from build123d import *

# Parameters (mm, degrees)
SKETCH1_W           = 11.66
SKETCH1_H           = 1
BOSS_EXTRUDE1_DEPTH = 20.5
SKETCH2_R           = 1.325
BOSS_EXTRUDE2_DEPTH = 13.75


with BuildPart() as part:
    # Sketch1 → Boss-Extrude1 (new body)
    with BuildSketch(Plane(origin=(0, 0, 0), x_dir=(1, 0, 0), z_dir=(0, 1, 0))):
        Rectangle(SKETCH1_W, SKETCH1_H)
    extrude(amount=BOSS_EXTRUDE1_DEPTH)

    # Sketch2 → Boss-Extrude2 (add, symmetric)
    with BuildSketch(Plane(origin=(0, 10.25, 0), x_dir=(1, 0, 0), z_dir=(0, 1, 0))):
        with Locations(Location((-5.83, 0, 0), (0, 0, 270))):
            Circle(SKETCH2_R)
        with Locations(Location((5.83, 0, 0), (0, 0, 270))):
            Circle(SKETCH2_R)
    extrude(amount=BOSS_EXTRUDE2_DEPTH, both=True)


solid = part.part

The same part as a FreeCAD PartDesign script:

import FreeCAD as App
import Part
import Sketcher
from FreeCAD import Vector
Q = App.Units.Quantity

doc = App.newDocument("Part")
body = doc.addObject("PartDesign::Body", "Body")

sketch1 = body.newObject("Sketcher::SketchObject", "Sketch")
sketch1.AttachmentSupport = (doc.getObject("XZ_Plane"), [""])
sketch1.MapMode = "FlatFace"
sketch1.addGeometry([
    Part.LineSegment(Vector(-5.83, -0.5, 0), Vector(-5.83, 0.5, 0)),
    Part.LineSegment(Vector(-5.83, 0.5, 0), Vector(5.83, 0.5, 0)),
    Part.LineSegment(Vector(5.83, 0.5, 0), Vector(5.83, -0.5, 0)),
    Part.LineSegment(Vector(5.83, -0.5, 0), Vector(-5.83, -0.5, 0)),
], False)
sketch1.addConstraint([
    Sketcher.Constraint("Coincident", 0, 2, 1, 1),
    Sketcher.Constraint("Coincident", 1, 2, 2, 1),
    Sketcher.Constraint("Coincident", 2, 2, 3, 1),
    Sketcher.Constraint("Coincident", 3, 2, 0, 1),
    Sketcher.Constraint("Vertical", 0),
    Sketcher.Constraint("Horizontal", 1),
    Sketcher.Constraint("Vertical", 2),
    Sketcher.Constraint("Horizontal", 3),
    Sketcher.Constraint("Symmetric", 0, 2, 2, 2, -1, 1),
    Sketcher.Constraint("DistanceY", 0, 1, 0, 2, Q("1 mm")),
    Sketcher.Constraint("DistanceX", 1, 1, 1, 2, Q("11.66 mm")),
])
pad1 = body.newObject("PartDesign::Pad", "Pad")
pad1.Profile = sketch1
pad1.Length = 20.5
pad1.Reversed = True

sketch2 = body.newObject("Sketcher::SketchObject", "Sketch001")
sketch2.AttachmentSupport = (doc.getObject("XZ_Plane"), [""])
sketch2.MapMode = "FlatFace"
sketch2.AttachmentOffset = App.Placement(Vector(0, 0, -10.25), App.Rotation())
sketch2.addGeometry([
    Part.Circle(Vector(-5.83, 0, 0), Vector(0, 0, 1), 1.325),
    Part.Circle(Vector(5.83, 0, 0), Vector(0, 0, 1), 1.325),
], False)
sketch2.addConstraint([
    Sketcher.Constraint("Equal", 0, 1),
    Sketcher.Constraint("Symmetric", 0, 3, 1, 3, -1, 1),
    Sketcher.Constraint("PointOnObject", 0, 3, -1),
    Sketcher.Constraint("Diameter", 0, Q("2.65 mm")),
    Sketcher.Constraint("DistanceX", 0, 3, -1, 1, Q("5.83 mm")),
])
pad2 = body.newObject("PartDesign::Pad", "Pad001")
pad2.Profile = sketch2
pad2.Length = 27.5
pad2.Midplane = True

doc.recompute()
